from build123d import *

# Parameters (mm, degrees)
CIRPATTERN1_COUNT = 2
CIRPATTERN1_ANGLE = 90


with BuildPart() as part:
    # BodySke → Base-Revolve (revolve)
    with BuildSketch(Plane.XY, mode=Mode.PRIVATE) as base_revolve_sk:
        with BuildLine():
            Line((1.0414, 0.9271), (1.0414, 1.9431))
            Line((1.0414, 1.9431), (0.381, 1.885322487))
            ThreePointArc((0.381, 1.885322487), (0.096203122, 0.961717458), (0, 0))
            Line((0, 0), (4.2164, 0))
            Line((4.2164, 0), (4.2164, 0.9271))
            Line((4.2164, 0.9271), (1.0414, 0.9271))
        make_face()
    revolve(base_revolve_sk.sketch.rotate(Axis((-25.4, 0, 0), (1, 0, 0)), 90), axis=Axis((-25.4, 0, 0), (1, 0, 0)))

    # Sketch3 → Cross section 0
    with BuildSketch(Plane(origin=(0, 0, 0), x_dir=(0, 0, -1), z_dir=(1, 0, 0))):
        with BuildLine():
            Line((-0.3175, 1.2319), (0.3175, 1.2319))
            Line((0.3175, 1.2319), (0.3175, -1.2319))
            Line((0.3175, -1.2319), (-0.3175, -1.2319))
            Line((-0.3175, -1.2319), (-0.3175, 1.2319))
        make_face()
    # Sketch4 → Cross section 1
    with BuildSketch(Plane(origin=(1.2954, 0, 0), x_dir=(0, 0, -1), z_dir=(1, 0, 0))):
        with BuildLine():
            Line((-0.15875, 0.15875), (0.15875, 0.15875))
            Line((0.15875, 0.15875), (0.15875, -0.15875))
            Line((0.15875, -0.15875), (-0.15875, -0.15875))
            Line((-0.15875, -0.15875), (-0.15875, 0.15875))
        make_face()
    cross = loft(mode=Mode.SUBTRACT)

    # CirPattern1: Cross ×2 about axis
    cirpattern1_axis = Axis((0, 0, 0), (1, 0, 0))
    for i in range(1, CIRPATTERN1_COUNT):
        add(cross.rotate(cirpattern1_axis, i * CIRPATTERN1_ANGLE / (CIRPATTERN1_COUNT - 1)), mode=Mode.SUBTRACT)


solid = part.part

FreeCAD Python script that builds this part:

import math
import FreeCAD as App
import Part
import Sketcher
from FreeCAD import Vector
Q = App.Units.Quantity

doc = App.newDocument("Part")
params = doc.addObject("Spreadsheet::Sheet", "Params")
for row, (alias, value) in enumerate([
    ("sketch1_height", "0.04 in"),
    ("sketch1_width", "0.166 in"),
    ("sketch1_width2", "0.125 in"),
    ("revolution_angle", "360 deg"),
    ("sketch2_width", "0.097 in"),
    ("sketch2_height", "0.025 in"),
], start=1):
    params.set(f"A{row}", alias)
    params.set(f"B{row}", "=" + value)
    params.setAlias(f"B{row}", alias)

body = doc.addObject("PartDesign::Body", "Body")

sketch1 = doc.addObject("Sketcher::SketchObject", "Sketch")
body.addObject(sketch1)
sketch1.AttachmentSupport = (doc.XY_Plane, [""])
sketch1.MapMode = "FlatFace"
sketch1.addGeometry([
    Part.LineSegment(Vector(1.0414, 0.9271, 0), Vector(1.0414, 1.9431, 0)),
    Part.LineSegment(Vector(1.0414, 1.9431, 0), Vector(0.381, 1.885322, 0)),
    Part.ArcOfCircle(Part.Circle(Vector(4.855121, 0, 0), Vector(0, 0, 1), 4.855121), math.radians(157.150225), math.radians(180)),
    Part.LineSegment(Vector(0, 0, 0), Vector(4.2164, 0, 0)),
    Part.LineSegment(Vector(4.2164, 0, 0), Vector(4.2164, 0.9271, 0)),
    Part.LineSegment(Vector(4.2164, 0.9271, 0), Vector(1.0414, 0.9271, 0)),
], False)
sketch1.addConstraint([
    Sketcher.Constraint("Coincident", 0, 2, 1, 1),
    Sketcher.Constraint("Coincident", 1, 2, 2, 1),
    Sketcher.Constraint("Coincident", 2, 2, 3, 1),
    Sketcher.Constraint("Coincident", 3, 2, 4, 1),
    Sketcher.Constraint("Coincident", 4, 2, 5, 1),
    Sketcher.Constraint("Coincident", 5, 2, 0, 1),
    Sketcher.Constraint("Vertical", 0),
    Sketcher.Constraint("Horizontal", 3),
    Sketcher.Constraint("Vertical", 4),
    Sketcher.Constraint("Horizontal", 5),
    Sketcher.Constraint("Coincident", 2, 2, -1, 1),
    Sketcher.Constraint("PointOnObject", 2, 3, -1),
    Sketcher.Constraint("Angle", 1, Q("-175 deg")),
    Sketcher.Constraint("DistanceY", 0, 1, 0, 2, Q("0.04 in")),
    Sketcher.Constraint("DistanceX", 3, 1, 3, 2, Q("0.166 in")),
    Sketcher.Constraint("DistanceX", 5, 2, 5, 1, Q("0.125 in")),
    Sketcher.Constraint("DistanceY", 4, 1, 4, 2, Q("0.0365 in")),
    Sketcher.Constraint("DistanceX", -1, 1, 1, 2, Q("0.015 in")),
])
sketch1.setExpression("Constraints[13]", "Params.sketch1_height")
sketch1.setExpression("Constraints[14]", "Params.sketch1_width")
sketch1.setExpression("Constraints[15]", "Params.sketch1_width2")
revolution = doc.addObject("PartDesign::Revolution", "Revolution")
body.addObject(revolution)
revolution.Profile = sketch1
revolution.ReferenceAxis = (sketch1, ["H_Axis"])
revolution.setExpression("Angle", "Params.revolution_angle")

sketch2 = doc.addObject("Sketcher::SketchObject", "Sketch001")
body.addObject(sketch2)
sketch2.AttachmentSupport = (doc.YZ_Plane, [""])
sketch2.MapMode = "FlatFace"
sketch2.addGeometry([
    Part.LineSegment(Vector(1.2319, -0.3175, 0), Vector(1.2319, 0.3175, 0)),
    Part.LineSegment(Vector(1.2319, 0.3175, 0), Vector(-1.2319, 0.3175, 0)),
    Part.LineSegment(Vector(-1.2319, 0.3175, 0), Vector(-1.2319, -0.3175, 0)),
    Part.LineSegment(Vector(-1.2319, -0.3175, 0), Vector(1.2319, -0.3175, 0)),
], False)
sketch2.addConstraint([
    Sketcher.Constraint("Coincident", 0, 2, 1, 1),
    Sketcher.Constraint("Coincident", 1, 2, 2, 1),
    Sketcher.Constraint("Coincident", 2, 2, 3, 1),
    Sketcher.Constraint("Coincident", 3, 2, 0, 1),
    Sketcher.Constraint("Vertical", 0),
    Sketcher.Constraint("Horizontal", 1),
    Sketcher.Constraint("Vertical", 2),
    Sketcher.Constraint("Horizontal", 3),
    Sketcher.Constraint("Symmetric", 0, 2, 2, 2, -1, 1),
    Sketcher.Constraint("DistanceX", 1, 2, 1, 1, Q("0.097 in")),
    Sketcher.Constraint("DistanceY", 0, 1, 0, 2, Q("0.025 in")),
])
sketch2.setExpression("Constraints[9]", "Params.sketch2_width")
sketch2.setExpression("Constraints[10]", "Params.sketch2_height")

sketch3 = doc.addObject("Sketcher::SketchObject", "Sketch002")
body.addObject(sketch3)
sketch3.AttachmentSupport = (doc.YZ_Plane, [""])
sketch3.MapMode = "FlatFace"
sketch3.AttachmentOffset = App.Placement(Vector(0, 0, 0.051 * 25.4), App.Rotation())
sketch3.addGeometry([
    Part.LineSegment(Vector(0.15875, -0.15875, 0), Vector(0.15875, 0.15875, 0)),
    Part.LineSegment(Vector(0.15875, 0.15875, 0), Vector(-0.15875, 0.15875, 0)),
    Part.LineSegment(Vector(-0.15875, 0.15875, 0), Vector(-0.15875, -0.15875, 0)),
    Part.LineSegment(Vector(-0.15875, -0.15875, 0), Vector(0.15875, -0.15875, 0)),
], False)
sketch3.addConstraint([
    Sketcher.Constraint("Coincident", 0, 2, 1, 1),
    Sketcher.Constraint("Coincident", 1, 2, 2, 1),
    Sketcher.Constraint("Coincident", 2, 2, 3, 1),
    Sketcher.Constraint("Coincident", 3, 2, 0, 1),
    Sketcher.Constraint("Vertical", 0),
    Sketcher.Constraint("Horizontal", 1),
    Sketcher.Constraint("Vertical", 2),
    Sketcher.Constraint("Horizontal", 3),
    Sketcher.Constraint("Symmetric", 0, 2, 2, 2, -1, 1),
    Sketcher.Constraint("Equal", 3, 0),
    Sketcher.Constraint("DistanceX", 1, 2, 1, 1, Q("0.0125 in")),
])

subtractiveloft = doc.addObject("PartDesign::SubtractiveLoft", "SubtractiveLoft")
body.addObject(subtractiveloft)
subtractiveloft.Profile = sketch2
subtractiveloft.Sections = [sketch3]
doc.recompute()

polarpattern = doc.addObject("PartDesign::PolarPattern", "PolarPattern")
body.addObject(polarpattern)
polarpattern.Originals = [subtractiveloft]
polarpattern.Axis = (doc.X_Axis, [""])
polarpattern.Angle = 90
polarpattern.Occurrences = 2
body.Tip = polarpattern

doc.recompute()
